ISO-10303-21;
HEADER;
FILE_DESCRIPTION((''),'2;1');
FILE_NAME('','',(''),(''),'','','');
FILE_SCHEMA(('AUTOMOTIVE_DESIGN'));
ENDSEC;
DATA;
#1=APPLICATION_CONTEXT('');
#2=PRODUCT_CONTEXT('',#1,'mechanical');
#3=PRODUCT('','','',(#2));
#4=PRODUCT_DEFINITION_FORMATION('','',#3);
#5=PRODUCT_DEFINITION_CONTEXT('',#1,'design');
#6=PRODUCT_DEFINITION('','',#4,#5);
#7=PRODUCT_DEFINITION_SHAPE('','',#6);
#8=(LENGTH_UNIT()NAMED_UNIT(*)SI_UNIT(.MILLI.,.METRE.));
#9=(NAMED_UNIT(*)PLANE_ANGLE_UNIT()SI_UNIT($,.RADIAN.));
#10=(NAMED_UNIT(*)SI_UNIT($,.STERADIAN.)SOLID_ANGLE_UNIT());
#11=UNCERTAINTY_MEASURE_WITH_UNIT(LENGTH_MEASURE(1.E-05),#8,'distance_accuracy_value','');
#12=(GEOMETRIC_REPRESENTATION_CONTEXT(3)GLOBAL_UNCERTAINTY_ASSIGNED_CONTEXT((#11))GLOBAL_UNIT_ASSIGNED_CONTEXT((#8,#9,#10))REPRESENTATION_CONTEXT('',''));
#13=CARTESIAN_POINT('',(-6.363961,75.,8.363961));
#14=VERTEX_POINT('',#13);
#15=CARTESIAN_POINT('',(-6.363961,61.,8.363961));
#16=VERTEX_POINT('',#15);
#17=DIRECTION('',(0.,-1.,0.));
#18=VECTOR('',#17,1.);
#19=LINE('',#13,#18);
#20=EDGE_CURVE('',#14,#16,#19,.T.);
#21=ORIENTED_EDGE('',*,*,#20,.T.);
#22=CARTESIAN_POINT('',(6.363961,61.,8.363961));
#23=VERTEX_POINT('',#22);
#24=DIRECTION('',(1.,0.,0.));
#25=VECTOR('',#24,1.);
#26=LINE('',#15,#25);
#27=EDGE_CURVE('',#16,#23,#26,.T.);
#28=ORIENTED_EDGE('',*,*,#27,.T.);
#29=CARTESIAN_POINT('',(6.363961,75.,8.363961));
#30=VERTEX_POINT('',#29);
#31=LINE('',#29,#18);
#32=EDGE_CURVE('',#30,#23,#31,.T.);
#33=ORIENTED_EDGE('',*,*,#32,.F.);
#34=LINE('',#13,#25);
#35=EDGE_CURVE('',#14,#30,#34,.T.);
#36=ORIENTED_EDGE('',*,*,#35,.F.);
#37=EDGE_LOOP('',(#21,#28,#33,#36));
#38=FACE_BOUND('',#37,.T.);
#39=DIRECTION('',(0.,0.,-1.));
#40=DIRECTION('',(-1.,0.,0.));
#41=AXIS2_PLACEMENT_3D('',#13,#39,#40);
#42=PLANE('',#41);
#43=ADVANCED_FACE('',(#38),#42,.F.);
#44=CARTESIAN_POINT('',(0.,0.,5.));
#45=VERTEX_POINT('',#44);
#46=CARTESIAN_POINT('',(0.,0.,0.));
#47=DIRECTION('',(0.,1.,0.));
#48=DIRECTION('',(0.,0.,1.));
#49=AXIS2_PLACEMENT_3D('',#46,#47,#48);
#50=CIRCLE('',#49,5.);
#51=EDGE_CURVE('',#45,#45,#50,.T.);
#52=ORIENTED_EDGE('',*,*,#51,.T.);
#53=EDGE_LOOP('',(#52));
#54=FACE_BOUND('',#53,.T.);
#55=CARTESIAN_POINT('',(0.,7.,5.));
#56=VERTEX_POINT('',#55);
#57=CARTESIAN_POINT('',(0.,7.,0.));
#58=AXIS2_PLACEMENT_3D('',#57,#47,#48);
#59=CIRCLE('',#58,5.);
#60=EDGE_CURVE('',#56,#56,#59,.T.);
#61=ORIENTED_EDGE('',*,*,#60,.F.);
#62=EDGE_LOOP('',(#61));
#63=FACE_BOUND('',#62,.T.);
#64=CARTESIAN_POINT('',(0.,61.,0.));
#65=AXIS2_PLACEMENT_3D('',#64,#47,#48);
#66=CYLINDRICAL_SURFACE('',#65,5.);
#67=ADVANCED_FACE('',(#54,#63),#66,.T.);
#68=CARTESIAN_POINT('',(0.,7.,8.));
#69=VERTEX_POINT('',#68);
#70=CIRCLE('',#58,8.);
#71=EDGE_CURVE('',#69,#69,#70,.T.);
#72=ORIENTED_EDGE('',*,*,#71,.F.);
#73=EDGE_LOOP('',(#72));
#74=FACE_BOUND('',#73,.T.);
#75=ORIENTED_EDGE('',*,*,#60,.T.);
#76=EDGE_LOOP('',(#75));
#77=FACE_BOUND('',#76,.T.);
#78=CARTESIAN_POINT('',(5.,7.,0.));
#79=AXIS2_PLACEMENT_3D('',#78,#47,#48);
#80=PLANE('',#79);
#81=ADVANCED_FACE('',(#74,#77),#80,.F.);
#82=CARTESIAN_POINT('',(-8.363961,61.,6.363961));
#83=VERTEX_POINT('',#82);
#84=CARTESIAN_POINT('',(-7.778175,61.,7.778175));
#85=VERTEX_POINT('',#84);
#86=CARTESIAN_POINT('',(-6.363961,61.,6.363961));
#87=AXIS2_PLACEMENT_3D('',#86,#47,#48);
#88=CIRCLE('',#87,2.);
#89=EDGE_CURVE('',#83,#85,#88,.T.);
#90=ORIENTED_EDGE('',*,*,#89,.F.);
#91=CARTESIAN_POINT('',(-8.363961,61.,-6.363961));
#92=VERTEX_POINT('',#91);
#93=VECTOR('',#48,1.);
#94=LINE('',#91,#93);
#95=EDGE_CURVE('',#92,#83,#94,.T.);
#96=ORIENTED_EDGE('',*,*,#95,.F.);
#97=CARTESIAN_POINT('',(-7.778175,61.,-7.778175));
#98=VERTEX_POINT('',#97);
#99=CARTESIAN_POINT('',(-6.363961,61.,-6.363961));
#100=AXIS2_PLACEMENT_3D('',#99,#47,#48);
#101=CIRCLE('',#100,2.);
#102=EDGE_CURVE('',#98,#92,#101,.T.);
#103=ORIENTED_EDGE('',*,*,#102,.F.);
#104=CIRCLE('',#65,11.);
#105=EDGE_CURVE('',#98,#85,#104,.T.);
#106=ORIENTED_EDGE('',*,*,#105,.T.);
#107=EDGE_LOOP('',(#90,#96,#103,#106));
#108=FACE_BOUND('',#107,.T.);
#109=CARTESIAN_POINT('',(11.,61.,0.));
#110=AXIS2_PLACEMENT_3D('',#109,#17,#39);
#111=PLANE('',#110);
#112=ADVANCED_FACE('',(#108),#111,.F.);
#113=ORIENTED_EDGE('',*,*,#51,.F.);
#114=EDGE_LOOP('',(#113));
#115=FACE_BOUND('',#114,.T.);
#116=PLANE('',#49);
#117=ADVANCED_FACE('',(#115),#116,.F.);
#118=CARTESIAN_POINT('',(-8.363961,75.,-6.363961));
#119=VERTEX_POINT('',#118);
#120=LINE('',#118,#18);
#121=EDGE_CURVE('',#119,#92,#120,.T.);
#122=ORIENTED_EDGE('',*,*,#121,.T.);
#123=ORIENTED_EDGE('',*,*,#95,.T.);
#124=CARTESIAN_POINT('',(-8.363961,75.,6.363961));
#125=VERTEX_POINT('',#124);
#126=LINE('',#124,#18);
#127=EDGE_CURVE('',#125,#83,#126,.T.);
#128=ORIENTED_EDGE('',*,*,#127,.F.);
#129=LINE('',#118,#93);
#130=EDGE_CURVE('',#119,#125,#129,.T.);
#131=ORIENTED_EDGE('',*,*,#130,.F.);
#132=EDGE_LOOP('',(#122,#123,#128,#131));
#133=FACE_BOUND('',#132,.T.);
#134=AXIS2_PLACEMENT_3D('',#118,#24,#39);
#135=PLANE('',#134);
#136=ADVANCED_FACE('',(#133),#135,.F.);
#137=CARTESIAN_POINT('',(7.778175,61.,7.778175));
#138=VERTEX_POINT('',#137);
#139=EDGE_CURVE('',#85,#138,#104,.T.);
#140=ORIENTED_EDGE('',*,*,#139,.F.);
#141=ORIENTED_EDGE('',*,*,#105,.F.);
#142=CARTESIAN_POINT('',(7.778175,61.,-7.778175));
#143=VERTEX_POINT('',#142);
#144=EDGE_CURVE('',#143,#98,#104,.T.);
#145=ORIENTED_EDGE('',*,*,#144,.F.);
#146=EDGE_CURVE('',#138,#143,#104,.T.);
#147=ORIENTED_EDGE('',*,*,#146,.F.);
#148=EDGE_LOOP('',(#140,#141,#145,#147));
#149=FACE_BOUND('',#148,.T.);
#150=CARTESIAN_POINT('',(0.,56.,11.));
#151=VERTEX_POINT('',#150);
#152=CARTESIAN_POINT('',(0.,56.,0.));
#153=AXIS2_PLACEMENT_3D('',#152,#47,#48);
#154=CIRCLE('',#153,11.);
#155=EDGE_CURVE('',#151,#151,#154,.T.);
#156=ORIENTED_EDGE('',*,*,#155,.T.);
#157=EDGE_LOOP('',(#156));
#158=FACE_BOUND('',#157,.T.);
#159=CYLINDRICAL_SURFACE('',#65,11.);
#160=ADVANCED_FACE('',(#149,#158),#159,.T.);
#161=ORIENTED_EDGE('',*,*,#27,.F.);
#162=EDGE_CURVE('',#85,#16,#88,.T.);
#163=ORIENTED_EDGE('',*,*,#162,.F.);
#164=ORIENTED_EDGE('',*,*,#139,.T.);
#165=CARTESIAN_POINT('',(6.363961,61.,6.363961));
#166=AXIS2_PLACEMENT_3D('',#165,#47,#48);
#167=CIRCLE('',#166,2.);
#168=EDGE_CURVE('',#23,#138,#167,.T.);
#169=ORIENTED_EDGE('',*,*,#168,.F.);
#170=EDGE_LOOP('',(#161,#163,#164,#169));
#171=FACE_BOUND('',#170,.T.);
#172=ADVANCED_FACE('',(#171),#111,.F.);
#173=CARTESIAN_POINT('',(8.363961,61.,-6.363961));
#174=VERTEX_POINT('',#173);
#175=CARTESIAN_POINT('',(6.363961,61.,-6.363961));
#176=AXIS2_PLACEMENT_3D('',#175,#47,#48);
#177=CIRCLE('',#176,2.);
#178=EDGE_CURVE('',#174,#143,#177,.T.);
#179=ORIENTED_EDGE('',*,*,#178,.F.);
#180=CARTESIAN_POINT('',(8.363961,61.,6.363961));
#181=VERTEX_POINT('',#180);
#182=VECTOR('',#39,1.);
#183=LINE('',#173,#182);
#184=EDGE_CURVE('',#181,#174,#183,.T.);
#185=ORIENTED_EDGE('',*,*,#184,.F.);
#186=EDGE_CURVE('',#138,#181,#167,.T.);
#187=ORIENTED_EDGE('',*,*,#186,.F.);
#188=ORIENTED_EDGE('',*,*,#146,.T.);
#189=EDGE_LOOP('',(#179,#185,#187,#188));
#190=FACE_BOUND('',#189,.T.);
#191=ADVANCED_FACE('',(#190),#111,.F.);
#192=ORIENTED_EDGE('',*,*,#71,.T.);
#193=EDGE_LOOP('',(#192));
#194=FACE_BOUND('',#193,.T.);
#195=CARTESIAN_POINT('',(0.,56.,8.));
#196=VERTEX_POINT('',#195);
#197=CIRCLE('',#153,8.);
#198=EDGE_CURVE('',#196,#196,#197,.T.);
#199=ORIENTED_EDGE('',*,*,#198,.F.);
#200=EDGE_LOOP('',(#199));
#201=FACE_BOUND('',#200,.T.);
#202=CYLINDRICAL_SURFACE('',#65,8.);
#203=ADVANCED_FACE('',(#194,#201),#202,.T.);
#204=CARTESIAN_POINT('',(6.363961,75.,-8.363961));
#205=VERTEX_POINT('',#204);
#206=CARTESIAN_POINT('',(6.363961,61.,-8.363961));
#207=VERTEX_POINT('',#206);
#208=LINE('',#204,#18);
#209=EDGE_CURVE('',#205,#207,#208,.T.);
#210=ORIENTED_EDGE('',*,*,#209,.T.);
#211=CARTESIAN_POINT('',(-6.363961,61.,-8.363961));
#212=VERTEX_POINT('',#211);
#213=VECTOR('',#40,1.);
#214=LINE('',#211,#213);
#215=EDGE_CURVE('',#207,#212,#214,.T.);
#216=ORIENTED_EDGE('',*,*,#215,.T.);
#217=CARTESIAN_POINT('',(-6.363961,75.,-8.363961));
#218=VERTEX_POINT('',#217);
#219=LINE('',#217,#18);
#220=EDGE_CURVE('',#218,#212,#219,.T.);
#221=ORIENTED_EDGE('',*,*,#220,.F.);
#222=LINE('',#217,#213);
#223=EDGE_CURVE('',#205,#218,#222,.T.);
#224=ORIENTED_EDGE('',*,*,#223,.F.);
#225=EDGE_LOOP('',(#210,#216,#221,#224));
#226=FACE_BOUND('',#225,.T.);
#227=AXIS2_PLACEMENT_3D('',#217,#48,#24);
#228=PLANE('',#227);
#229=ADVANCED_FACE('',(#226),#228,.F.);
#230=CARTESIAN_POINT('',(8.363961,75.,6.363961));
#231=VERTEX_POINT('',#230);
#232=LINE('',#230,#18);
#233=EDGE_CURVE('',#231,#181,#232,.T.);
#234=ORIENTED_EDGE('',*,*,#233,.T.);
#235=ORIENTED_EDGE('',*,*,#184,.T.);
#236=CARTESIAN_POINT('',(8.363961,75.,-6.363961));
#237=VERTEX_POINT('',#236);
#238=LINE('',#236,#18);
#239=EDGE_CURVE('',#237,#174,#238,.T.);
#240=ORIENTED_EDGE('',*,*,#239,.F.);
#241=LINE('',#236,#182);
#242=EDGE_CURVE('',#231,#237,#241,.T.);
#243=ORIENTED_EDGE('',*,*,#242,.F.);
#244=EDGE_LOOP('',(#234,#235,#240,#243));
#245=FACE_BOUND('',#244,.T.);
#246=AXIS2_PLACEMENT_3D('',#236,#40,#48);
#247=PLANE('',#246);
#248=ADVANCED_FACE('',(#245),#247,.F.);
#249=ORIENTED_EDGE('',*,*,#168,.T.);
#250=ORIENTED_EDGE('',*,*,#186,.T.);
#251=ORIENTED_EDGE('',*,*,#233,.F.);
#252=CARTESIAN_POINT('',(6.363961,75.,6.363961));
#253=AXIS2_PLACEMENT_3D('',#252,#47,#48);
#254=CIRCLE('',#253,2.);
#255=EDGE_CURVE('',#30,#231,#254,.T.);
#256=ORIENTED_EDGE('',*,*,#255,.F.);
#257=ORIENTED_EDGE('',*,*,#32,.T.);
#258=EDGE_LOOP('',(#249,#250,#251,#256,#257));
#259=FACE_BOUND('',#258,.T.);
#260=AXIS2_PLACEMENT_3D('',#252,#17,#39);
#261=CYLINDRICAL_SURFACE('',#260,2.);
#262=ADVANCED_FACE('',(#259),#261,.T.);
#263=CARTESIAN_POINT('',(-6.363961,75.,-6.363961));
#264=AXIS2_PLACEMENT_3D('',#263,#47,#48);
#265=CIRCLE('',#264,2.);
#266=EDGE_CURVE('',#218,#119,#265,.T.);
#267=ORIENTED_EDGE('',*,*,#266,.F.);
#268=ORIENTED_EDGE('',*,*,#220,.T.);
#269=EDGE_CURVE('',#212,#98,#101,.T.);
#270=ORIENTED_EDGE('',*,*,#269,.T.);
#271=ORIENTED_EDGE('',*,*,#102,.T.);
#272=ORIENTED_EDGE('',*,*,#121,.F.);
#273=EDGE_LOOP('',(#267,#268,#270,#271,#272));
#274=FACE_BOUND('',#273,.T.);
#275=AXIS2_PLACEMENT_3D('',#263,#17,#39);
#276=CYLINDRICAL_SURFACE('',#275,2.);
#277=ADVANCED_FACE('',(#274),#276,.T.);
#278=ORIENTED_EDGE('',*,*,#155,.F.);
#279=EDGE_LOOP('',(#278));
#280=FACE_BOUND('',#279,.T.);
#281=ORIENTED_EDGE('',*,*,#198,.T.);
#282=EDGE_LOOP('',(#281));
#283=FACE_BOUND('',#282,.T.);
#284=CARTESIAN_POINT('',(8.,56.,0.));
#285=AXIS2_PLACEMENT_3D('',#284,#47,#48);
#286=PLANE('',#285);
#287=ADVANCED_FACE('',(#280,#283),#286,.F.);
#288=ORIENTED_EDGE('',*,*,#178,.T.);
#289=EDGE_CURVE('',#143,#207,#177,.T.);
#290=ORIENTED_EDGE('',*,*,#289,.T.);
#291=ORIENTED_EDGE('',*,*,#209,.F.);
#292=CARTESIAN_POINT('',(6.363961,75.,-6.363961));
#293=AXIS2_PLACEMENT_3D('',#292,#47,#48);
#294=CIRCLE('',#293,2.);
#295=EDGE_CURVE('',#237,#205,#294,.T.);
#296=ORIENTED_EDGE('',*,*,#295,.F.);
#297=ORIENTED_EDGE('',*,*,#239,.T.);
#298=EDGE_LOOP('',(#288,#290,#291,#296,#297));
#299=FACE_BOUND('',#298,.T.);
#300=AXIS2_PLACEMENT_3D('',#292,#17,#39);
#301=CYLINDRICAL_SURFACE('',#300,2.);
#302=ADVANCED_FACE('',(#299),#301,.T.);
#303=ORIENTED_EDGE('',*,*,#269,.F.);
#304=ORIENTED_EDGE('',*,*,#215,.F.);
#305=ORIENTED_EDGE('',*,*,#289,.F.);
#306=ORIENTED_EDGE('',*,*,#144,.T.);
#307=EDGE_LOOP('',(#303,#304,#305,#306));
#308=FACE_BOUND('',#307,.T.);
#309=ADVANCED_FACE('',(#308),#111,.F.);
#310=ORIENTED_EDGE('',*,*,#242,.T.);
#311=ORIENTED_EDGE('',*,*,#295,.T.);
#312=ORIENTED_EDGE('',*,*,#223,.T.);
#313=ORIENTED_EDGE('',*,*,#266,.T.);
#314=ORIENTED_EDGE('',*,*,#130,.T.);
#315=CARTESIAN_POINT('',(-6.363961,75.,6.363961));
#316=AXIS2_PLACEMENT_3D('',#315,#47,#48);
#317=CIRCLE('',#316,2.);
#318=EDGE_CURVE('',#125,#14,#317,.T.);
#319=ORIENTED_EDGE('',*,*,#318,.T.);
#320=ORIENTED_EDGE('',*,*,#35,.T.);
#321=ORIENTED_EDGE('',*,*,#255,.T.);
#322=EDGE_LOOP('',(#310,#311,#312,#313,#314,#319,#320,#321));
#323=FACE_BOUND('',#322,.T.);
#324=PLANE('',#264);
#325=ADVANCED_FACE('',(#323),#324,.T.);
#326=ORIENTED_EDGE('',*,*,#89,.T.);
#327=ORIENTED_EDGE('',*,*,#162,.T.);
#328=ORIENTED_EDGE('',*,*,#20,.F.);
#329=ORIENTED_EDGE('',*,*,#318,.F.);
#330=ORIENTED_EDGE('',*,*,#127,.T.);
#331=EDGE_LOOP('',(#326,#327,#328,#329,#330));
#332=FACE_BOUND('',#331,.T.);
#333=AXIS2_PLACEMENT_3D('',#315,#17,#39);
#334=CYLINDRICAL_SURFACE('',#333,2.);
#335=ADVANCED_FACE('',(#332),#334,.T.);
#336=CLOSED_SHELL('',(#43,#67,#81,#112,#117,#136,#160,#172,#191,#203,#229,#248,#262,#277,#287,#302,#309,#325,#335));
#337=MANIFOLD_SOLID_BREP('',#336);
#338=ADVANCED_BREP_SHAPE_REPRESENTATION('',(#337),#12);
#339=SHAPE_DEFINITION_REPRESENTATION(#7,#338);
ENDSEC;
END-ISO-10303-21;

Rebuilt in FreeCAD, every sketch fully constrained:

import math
import FreeCAD as App
import Part
import Sketcher
from FreeCAD import Vector


def add_polygon(sketch, points):
    """Adds a closed chain of lines whose ends are joined by coincident constraints."""
    first, n = sketch.GeometryCount, len(points)
    for a, b in zip(points, points[1:] + points[:1]):
        sketch.addGeometry(Part.LineSegment(App.Vector(*a, 0), App.Vector(*b, 0)), False)
    for i in range(n):
        sketch.addConstraint(Sketcher.Constraint("Coincident", first + i, 2, first + (i + 1) % n, 1))

doc = App.newDocument("Part")
body = doc.addObject("PartDesign::Body", "Body")

# Sketch on XY plane
sketch1 = body.newObject("Sketcher::SketchObject", "Sketch")
sketch1.AttachmentSupport = (doc.getObject("XY_Plane"), [""])
sketch1.MapMode = "FlatFace"
add_polygon(sketch1, [(0, 0), (5, 0), (5, 7), (8, 7), (8, 56), (11, 56), (11, 61), (0, 61)])  # lines 0-7
sketch1.addConstraint([
    Sketcher.Constraint("Horizontal", 0),
    Sketcher.Constraint("Vertical", 1),
    Sketcher.Constraint("Horizontal", 2),
    Sketcher.Constraint("Vertical", 3),
    Sketcher.Constraint("Horizontal", 4),
    Sketcher.Constraint("Vertical", 5),
    Sketcher.Constraint("Horizontal", 6),
    Sketcher.Constraint("Vertical", 7),
    Sketcher.Constraint("Coincident", 7, 2, -1, 1),
    Sketcher.Constraint("Equal", 2, 4),
    Sketcher.Constraint("Equal", 0, 5),
    Sketcher.Constraint("DistanceX", 0, 1, 0, 2, 5.0),
    Sketcher.Constraint("DistanceX", 2, 1, 2, 2, 3.0),
    Sketcher.Constraint("DistanceY", 1, 1, 1, 2, 7.0),
    Sketcher.Constraint("DistanceY", 3, 1, 3, 2, 49.0),
])
revolution = body.newObject("PartDesign::Revolution", "Revolution")
revolution.Profile = sketch1
revolution.ReferenceAxis = (sketch1, ["V_Axis"])
revolution.Angle = 360

# Sketch on XZ plane
sketch2 = body.newObject("Sketcher::SketchObject", "Sketch001")
sketch2.AttachmentSupport = (doc.getObject("XZ_Plane"), [""])
sketch2.MapMode = "FlatFace"
sketch2.AttachmentOffset = App.Placement(Vector(0, 0, -61), App.Rotation())
sketch2.addGeometry([
    Part.LineSegment(Vector(6.4, -8.4, 0), Vector(-6.4, -8.4, 0)),  # 0
    Part.ArcOfCircle(Part.Circle(Vector(-6.4, -6.4, 0), Vector(0, 0, 1), 2), math.radians(-180), math.radians(-90)),  # 1
    Part.LineSegment(Vector(-8.4, -6.4, 0), Vector(-8.4, 6.4, 0)),  # 2
    Part.ArcOfCircle(Part.Circle(Vector(-6.4, 6.4, 0), Vector(0, 0, 1), 2), math.radians(90), math.radians(180)),  # 3
    Part.LineSegment(Vector(-6.4, 8.4, 0), Vector(6.4, 8.4, 0)),  # 4
    Part.ArcOfCircle(Part.Circle(Vector(6.4, 6.4, 0), Vector(0, 0, 1), 2), math.radians(0), math.radians(90)),  # 5
    Part.LineSegment(Vector(8.4, 6.4, 0), Vector(8.4, -6.4, 0)),  # 6
    Part.ArcOfCircle(Part.Circle(Vector(6.4, -6.4, 0), Vector(0, 0, 1), 2), math.radians(-90), math.radians(0)),  # 7
], False)
sketch2.addConstraint([
    Sketcher.Constraint("Tangent", 0, 2, 1, 2),
    Sketcher.Constraint("Tangent", 1, 1, 2, 1),
    Sketcher.Constraint("Tangent", 2, 2, 3, 2),
    Sketcher.Constraint("Tangent", 3, 1, 4, 1),
    Sketcher.Constraint("Tangent", 4, 2, 5, 2),
    Sketcher.Constraint("Tangent", 5, 1, 6, 1),
    Sketcher.Constraint("Tangent", 6, 2, 7, 2),
    Sketcher.Constraint("Tangent", 7, 1, 0, 1),
    Sketcher.Constraint("Horizontal", 0),
    Sketcher.Constraint("Vertical", 2),
    Sketcher.Constraint("Horizontal", 4),
    Sketcher.Constraint("Vertical", 6),
    Sketcher.Constraint("Equal", 1, 3),
    Sketcher.Constraint("Equal", 3, 5),
    Sketcher.Constraint("Equal", 5, 7),
    Sketcher.Constraint("Symmetric", 1, 3, 5, 3, -1, 1),
    Sketcher.Constraint("Equal", 4, 2),
    Sketcher.Constraint("Radius", 1, 2.0),
    Sketcher.Constraint("DistanceX", 0, 2, 0, 1, 12.727922),
])
pad1 = body.newObject("PartDesign::Pad", "Pad")
pad1.Profile = sketch2
pad1.Length = 14
pad1.Reversed = True

doc.recompute()
